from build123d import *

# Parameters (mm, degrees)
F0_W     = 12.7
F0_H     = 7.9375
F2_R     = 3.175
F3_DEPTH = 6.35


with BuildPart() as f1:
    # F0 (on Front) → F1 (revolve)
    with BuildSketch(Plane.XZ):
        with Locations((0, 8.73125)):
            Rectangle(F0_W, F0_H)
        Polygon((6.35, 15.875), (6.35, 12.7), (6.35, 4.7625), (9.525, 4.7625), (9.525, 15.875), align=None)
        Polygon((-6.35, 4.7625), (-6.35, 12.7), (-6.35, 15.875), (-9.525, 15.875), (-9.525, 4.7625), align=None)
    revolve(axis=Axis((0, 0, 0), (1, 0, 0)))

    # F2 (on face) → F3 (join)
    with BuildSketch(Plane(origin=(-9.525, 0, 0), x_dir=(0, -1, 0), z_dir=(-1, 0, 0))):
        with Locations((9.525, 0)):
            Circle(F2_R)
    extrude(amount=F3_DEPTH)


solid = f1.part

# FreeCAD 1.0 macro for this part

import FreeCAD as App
import Part
import Sketcher
from FreeCAD import Vector
Q = App.Units.Quantity


def add_polygon(sketch, points):
    """Adds a closed chain of lines whose ends are joined by coincident constraints."""
    first, n = sketch.GeometryCount, len(points)
    for a, b in zip(points, points[1:] + points[:1]):
        sketch.addGeometry(Part.LineSegment(App.Vector(*a, 0), App.Vector(*b, 0)), False)
    for i in range(n):
        sketch.addConstraint(Sketcher.Constraint("Coincident", first + i, 2, first + (i + 1) % n, 1))

doc = App.newDocument("Part")
params = doc.addObject("Spreadsheet::Sheet", "Params")
for row, (alias, value) in enumerate([
    ("sketch1_width", "0.5 in"),
    ("sketch1_width2", "0.75 in"),
    ("sketch1_height", "0.4375 in"),
    ("revolution_angle", "360 deg"),
    ("sketch2_diameter", "0.25 in"),
    ("pad1_length", "0.25 in"),
], start=1):
    params.set(f"A{row}", alias)
    params.set(f"B{row}", "=" + value)
    params.setAlias(f"B{row}", alias)

body = doc.addObject("PartDesign::Body", "Body")

# Sketch on XZ plane
sketch1 = doc.addObject("Sketcher::SketchObject", "Sketch")
body.addObject(sketch1)
sketch1.AttachmentSupport = (doc.XZ_Plane, [""])
sketch1.MapMode = "FlatFace"
add_polygon(sketch1, [(9.5, 4.8), (9.5, 15.9), (6.3, 15.9), (6.3, 12.7), (-6.3, 12.7), (-6.3, 15.9), (-9.5, 15.9), (-9.5, 4.8)])  # lines 0-7
sketch1.addConstraint(Sketcher.Constraint("Vertical", 0))
sketch1.addConstraint(Sketcher.Constraint("Horizontal", 1))
sketch1.addConstraint(Sketcher.Constraint("Vertical", 2))
sketch1.addConstraint(Sketcher.Constraint("Horizontal", 3))
sketch1.addConstraint(Sketcher.Constraint("Vertical", 4))
sketch1.addConstraint(Sketcher.Constraint("Horizontal", 5))
sketch1.addConstraint(Sketcher.Constraint("Vertical", 6))
sketch1.addConstraint(Sketcher.Constraint("Horizontal", 7))
sketch1.addConstraint(Sketcher.Constraint("Symmetric", 1, 2, 4, 2, -2))
sketch1.addConstraint(Sketcher.Constraint("Equal", 1, 5))
sketch1.addConstraint(Sketcher.Constraint("Equal", 5, 2))
sketch1.addConstraint(Sketcher.Constraint("DistanceX", 3, 2, 3, 1, Q("0.5 in")))
sketch1.addConstraint(Sketcher.Constraint("DistanceX", 7, 1, 7, 2, Q("0.75 in")))
sketch1.addConstraint(Sketcher.Constraint("DistanceY", -1, 1, 2, 2, Q("0.5 in")))
sketch1.addConstraint(Sketcher.Constraint("DistanceY", 0, 1, 0, 2, Q("0.4375 in")))
sketch1.setExpression("Constraints[19]", "Params.sketch1_width")
sketch1.setExpression("Constraints[20]", "Params.sketch1_width2")
sketch1.setExpression("Constraints[22]", "Params.sketch1_height")
revolution = doc.addObject("PartDesign::Revolution", "Revolution")
body.addObject(revolution)
revolution.Profile = sketch1
revolution.ReferenceAxis = (sketch1, ["H_Axis"])
revolution.setExpression("Angle", "Params.revolution_angle")

# Sketch on YZ plane
sketch2 = doc.addObject("Sketcher::SketchObject", "Sketch001")
body.addObject(sketch2)
sketch2.AttachmentSupport = (doc.YZ_Plane, [""])
sketch2.MapMode = "FlatFace"
sketch2.AttachmentOffset = App.Placement(Vector(0, 0, -0.375 * 25.4), App.Rotation())
sketch2.addGeometry(Part.Circle(Vector(-9.5, 0, 0), Vector(0, 0, 1), 3.2), False)
sketch2.addConstraint(Sketcher.Constraint("PointOnObject", 0, 3, -1))
sketch2.addConstraint(Sketcher.Constraint("Diameter", 0, Q("0.25 in")))
sketch2.addConstraint(Sketcher.Constraint("DistanceX", 0, 3, -1, 1, Q("0.375 in")))
sketch2.setExpression("Constraints[1]", "Params.sketch2_diameter")
pad1 = doc.addObject("PartDesign::Pad", "Pad")
body.addObject(pad1)
pad1.Profile = sketch2
pad1.setExpression("Length", "Params.pad1_length")
pad1.Reversed = True

doc.recompute()
